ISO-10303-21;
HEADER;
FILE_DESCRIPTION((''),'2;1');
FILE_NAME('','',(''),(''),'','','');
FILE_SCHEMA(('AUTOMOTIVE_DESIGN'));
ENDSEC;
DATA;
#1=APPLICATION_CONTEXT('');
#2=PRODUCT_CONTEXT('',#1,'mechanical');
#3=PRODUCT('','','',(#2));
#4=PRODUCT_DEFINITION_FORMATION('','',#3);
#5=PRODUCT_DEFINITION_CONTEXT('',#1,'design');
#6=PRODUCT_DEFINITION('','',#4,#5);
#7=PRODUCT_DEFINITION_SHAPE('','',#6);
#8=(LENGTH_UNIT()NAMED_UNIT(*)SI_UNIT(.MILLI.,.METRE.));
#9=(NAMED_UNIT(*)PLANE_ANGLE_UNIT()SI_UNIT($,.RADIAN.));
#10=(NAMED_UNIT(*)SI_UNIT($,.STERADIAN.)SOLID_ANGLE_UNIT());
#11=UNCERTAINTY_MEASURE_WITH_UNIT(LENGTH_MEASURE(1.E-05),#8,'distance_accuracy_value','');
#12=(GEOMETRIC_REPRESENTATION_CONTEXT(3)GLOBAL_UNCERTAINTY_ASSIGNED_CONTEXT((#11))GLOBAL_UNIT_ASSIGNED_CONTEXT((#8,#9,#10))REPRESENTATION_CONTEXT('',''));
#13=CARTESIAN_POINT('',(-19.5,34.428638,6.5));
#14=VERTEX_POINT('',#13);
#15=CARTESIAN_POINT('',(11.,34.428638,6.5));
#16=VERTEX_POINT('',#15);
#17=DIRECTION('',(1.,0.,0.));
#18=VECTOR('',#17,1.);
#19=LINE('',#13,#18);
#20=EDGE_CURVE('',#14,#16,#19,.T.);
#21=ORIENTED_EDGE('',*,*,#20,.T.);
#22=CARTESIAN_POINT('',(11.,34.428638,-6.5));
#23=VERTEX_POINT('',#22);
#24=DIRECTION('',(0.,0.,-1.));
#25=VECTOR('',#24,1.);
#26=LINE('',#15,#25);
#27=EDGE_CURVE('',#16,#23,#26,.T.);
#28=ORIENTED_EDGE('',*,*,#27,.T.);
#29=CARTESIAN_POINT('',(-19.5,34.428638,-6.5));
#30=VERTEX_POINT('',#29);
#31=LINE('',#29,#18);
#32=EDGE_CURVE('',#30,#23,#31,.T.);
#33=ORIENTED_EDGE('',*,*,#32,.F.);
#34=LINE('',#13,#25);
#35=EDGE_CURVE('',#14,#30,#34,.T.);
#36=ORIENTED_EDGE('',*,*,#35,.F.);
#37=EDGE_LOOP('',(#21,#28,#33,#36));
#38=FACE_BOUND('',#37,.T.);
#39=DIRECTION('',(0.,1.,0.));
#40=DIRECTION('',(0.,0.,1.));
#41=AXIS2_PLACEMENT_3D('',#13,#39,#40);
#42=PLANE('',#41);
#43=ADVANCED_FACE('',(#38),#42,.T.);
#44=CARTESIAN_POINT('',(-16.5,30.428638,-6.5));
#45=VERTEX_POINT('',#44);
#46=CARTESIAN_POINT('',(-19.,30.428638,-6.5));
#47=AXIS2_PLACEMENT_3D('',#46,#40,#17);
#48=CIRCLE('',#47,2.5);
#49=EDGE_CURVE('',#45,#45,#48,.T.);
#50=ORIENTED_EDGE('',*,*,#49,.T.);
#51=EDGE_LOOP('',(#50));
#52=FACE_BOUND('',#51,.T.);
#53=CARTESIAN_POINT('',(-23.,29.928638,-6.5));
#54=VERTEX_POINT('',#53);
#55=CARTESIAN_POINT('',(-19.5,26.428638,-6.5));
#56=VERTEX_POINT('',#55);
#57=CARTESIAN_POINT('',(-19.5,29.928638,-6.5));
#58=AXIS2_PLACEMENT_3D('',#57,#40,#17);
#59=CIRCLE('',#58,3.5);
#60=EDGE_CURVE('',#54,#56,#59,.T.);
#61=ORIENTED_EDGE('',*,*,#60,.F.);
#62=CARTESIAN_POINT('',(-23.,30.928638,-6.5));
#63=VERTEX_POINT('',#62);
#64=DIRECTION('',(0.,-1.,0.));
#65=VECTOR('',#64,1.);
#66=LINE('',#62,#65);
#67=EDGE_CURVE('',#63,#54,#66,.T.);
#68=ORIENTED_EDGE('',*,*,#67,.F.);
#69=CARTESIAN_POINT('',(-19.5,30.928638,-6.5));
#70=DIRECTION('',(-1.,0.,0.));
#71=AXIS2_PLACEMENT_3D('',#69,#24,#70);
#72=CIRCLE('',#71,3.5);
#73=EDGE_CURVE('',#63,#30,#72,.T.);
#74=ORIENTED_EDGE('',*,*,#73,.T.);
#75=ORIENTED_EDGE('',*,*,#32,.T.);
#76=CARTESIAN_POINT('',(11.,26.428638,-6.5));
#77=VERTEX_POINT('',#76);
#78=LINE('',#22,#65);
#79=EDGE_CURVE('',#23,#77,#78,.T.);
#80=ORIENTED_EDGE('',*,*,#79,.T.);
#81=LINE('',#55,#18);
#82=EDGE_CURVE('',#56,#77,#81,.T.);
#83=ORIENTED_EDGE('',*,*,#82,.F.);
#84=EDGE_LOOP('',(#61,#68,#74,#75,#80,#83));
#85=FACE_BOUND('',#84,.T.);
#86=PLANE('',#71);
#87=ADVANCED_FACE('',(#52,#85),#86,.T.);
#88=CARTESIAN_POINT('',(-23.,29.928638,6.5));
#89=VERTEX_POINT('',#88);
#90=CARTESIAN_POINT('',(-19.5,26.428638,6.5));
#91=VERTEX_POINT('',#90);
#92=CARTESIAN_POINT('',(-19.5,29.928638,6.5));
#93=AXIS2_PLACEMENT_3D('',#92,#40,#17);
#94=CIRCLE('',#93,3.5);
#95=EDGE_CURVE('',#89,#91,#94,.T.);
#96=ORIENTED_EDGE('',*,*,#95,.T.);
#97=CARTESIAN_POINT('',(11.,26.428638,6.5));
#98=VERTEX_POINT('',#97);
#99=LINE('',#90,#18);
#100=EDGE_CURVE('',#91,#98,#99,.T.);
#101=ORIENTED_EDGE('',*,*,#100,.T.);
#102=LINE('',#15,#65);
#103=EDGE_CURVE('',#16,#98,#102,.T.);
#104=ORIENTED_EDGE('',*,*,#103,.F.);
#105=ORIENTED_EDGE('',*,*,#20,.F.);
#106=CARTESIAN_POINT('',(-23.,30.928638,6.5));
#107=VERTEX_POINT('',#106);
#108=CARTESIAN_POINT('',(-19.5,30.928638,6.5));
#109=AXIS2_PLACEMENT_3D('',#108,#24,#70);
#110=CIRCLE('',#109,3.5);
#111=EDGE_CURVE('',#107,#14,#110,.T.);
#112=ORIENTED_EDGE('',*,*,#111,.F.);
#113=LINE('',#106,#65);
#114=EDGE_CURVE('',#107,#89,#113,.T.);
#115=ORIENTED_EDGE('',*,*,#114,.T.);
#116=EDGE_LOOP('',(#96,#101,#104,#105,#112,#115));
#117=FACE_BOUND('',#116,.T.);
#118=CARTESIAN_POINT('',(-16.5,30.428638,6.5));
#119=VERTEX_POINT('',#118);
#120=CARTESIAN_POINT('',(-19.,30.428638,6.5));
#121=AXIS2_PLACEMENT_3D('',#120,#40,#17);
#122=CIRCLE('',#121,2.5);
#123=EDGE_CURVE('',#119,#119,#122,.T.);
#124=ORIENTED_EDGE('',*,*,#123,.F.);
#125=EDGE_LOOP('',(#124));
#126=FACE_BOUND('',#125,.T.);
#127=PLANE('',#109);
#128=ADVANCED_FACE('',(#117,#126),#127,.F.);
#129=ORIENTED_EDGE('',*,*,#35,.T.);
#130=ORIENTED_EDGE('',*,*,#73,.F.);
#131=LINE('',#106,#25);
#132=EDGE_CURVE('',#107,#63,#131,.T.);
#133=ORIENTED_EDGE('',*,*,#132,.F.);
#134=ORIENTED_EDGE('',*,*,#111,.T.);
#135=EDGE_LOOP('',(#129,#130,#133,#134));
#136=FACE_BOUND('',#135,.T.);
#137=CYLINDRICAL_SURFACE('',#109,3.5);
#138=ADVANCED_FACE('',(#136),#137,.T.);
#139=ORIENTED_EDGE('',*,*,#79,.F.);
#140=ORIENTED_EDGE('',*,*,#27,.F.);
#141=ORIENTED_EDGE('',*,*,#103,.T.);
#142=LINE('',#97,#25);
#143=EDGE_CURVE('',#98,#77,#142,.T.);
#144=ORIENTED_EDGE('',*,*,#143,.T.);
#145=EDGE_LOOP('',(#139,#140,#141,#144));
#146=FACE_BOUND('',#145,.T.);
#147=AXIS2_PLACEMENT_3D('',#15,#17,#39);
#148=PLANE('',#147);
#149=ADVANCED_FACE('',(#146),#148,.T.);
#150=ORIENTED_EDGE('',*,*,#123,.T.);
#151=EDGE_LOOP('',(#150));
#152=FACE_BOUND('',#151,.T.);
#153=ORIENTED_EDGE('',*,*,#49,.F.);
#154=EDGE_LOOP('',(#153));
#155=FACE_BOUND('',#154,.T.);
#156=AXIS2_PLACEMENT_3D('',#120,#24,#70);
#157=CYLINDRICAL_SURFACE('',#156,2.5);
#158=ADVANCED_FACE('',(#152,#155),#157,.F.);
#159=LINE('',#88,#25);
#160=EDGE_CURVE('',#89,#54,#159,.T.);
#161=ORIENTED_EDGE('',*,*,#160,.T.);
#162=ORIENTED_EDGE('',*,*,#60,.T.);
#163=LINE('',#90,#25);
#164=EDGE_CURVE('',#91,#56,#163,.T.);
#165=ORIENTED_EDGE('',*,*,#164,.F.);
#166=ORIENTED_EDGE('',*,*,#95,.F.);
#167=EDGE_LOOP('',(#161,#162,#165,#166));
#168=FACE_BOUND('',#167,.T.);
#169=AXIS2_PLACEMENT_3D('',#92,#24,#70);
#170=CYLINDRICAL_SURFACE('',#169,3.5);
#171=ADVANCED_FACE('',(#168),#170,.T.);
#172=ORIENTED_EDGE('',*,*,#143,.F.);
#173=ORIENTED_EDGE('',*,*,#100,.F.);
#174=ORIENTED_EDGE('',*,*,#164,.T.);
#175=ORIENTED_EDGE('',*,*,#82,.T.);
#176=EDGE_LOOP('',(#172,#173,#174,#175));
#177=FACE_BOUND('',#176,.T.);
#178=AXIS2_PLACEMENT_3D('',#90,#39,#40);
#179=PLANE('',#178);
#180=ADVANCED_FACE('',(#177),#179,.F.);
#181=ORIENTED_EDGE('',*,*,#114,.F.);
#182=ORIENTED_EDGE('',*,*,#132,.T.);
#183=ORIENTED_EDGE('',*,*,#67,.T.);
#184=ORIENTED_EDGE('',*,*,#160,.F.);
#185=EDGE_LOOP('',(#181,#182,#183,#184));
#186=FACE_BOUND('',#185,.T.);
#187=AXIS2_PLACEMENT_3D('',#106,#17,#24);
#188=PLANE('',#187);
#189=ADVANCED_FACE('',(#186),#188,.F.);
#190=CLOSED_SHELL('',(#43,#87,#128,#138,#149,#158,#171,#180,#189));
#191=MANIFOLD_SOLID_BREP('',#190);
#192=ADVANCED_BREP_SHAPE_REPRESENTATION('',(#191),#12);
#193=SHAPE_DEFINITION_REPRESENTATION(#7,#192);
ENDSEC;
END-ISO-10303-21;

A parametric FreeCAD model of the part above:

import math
import FreeCAD as App
import Part
import Sketcher

doc = App.newDocument("Part")
params = doc.addObject("Spreadsheet::Sheet", "Params")
for row, (alias, value) in enumerate([
    ("sketch1_diameter", "5 mm"),
    ("sketch1_radius", "3.5 mm"),
    ("sketch1_height", "1 mm"),
    ("sketch1_width", "30.5 mm"),
    ("pad1_length", "13 mm"),
], start=1):
    params.set(f"A{row}", alias)
    params.set(f"B{row}", "=" + value)
    params.setAlias(f"B{row}", alias)

body = doc.addObject("PartDesign::Body", "Body")

sketch1 = body.newObject("Sketcher::SketchObject", "Sketch")
sketch1.AttachmentSupport = (doc.getObject("XY_Plane"), [""])
sketch1.MapMode = "FlatFace"
sketch1.addGeometry(Part.LineSegment(App.Vector(11, 34.4, 0), App.Vector(-19.5, 34.4, 0)), False)
sketch1.addGeometry(Part.ArcOfCircle(Part.Circle(App.Vector(-19.5, 30.9, 0), App.Vector(0, 0, 1), 3.5), math.radians(90), math.radians(180)), False)
sketch1.addGeometry(Part.LineSegment(App.Vector(-23, 30.9, 0), App.Vector(-23, 29.9, 0)), False)
sketch1.addGeometry(Part.ArcOfCircle(Part.Circle(App.Vector(-19.5, 29.9, 0), App.Vector(0, 0, 1), 3.5), math.radians(-180), math.radians(-90)), False)
sketch1.addGeometry(Part.LineSegment(App.Vector(-19.5, 26.4, 0), App.Vector(11, 26.4, 0)), False)
sketch1.addGeometry(Part.LineSegment(App.Vector(11, 26.4, 0), App.Vector(11, 34.4, 0)), False)
sketch1.addGeometry(Part.Circle(App.Vector(-19, 30.4, 0), App.Vector(0, 0, 1), 2.5), False)
sketch1.addConstraint(Sketcher.Constraint("Tangent", 0, 2, 1, 1))
sketch1.addConstraint(Sketcher.Constraint("Tangent", 1, 2, 2, 1))
sketch1.addConstraint(Sketcher.Constraint("Tangent", 2, 2, 3, 1))
sketch1.addConstraint(Sketcher.Constraint("Tangent", 3, 2, 4, 1))
sketch1.addConstraint(Sketcher.Constraint("Coincident", 4, 2, 5, 1))
sketch1.addConstraint(Sketcher.Constraint("Coincident", 5, 2, 0, 1))
sketch1.addConstraint(Sketcher.Constraint("Horizontal", 0))
sketch1.addConstraint(Sketcher.Constraint("Vertical", 2))
sketch1.addConstraint(Sketcher.Constraint("Horizontal", 4))
sketch1.addConstraint(Sketcher.Constraint("Vertical", 5))
sketch1.addConstraint(Sketcher.Constraint("Equal", 1, 3))
sketch1.addConstraint(Sketcher.Constraint("Diameter", 6, 5.0))
sketch1.addConstraint(Sketcher.Constraint("Radius", 1, 3.5))
sketch1.addConstraint(Sketcher.Constraint("DistanceY", 2, 2, 2, 1, 1.0))
sketch1.addConstraint(Sketcher.Constraint("DistanceX", 0, 2, 0, 1, 30.5))
sketch1.addConstraint(Sketcher.Constraint("DistanceX", 6, 3, -1, 1, 19.0))
sketch1.addConstraint(Sketcher.Constraint("DistanceX", 1, 2, -1, 1, 23.0))
sketch1.addConstraint(Sketcher.Constraint("DistanceY", 6, 3, 0, 2, 4.0))
sketch1.addConstraint(Sketcher.Constraint("DistanceY", -1, 1, 1, 3, 30.928638))
sketch1.setExpression("Constraints[11]", "Params.sketch1_diameter")
sketch1.setExpression("Constraints[12]", "Params.sketch1_radius")
sketch1.setExpression("Constraints[13]", "Params.sketch1_height")
sketch1.setExpression("Constraints[14]", "Params.sketch1_width")
pad1 = body.newObject("PartDesign::Pad", "Pad")
pad1.Profile = sketch1
pad1.setExpression("Length", "Params.pad1_length")
pad1.Midplane = True

doc.recompute()
